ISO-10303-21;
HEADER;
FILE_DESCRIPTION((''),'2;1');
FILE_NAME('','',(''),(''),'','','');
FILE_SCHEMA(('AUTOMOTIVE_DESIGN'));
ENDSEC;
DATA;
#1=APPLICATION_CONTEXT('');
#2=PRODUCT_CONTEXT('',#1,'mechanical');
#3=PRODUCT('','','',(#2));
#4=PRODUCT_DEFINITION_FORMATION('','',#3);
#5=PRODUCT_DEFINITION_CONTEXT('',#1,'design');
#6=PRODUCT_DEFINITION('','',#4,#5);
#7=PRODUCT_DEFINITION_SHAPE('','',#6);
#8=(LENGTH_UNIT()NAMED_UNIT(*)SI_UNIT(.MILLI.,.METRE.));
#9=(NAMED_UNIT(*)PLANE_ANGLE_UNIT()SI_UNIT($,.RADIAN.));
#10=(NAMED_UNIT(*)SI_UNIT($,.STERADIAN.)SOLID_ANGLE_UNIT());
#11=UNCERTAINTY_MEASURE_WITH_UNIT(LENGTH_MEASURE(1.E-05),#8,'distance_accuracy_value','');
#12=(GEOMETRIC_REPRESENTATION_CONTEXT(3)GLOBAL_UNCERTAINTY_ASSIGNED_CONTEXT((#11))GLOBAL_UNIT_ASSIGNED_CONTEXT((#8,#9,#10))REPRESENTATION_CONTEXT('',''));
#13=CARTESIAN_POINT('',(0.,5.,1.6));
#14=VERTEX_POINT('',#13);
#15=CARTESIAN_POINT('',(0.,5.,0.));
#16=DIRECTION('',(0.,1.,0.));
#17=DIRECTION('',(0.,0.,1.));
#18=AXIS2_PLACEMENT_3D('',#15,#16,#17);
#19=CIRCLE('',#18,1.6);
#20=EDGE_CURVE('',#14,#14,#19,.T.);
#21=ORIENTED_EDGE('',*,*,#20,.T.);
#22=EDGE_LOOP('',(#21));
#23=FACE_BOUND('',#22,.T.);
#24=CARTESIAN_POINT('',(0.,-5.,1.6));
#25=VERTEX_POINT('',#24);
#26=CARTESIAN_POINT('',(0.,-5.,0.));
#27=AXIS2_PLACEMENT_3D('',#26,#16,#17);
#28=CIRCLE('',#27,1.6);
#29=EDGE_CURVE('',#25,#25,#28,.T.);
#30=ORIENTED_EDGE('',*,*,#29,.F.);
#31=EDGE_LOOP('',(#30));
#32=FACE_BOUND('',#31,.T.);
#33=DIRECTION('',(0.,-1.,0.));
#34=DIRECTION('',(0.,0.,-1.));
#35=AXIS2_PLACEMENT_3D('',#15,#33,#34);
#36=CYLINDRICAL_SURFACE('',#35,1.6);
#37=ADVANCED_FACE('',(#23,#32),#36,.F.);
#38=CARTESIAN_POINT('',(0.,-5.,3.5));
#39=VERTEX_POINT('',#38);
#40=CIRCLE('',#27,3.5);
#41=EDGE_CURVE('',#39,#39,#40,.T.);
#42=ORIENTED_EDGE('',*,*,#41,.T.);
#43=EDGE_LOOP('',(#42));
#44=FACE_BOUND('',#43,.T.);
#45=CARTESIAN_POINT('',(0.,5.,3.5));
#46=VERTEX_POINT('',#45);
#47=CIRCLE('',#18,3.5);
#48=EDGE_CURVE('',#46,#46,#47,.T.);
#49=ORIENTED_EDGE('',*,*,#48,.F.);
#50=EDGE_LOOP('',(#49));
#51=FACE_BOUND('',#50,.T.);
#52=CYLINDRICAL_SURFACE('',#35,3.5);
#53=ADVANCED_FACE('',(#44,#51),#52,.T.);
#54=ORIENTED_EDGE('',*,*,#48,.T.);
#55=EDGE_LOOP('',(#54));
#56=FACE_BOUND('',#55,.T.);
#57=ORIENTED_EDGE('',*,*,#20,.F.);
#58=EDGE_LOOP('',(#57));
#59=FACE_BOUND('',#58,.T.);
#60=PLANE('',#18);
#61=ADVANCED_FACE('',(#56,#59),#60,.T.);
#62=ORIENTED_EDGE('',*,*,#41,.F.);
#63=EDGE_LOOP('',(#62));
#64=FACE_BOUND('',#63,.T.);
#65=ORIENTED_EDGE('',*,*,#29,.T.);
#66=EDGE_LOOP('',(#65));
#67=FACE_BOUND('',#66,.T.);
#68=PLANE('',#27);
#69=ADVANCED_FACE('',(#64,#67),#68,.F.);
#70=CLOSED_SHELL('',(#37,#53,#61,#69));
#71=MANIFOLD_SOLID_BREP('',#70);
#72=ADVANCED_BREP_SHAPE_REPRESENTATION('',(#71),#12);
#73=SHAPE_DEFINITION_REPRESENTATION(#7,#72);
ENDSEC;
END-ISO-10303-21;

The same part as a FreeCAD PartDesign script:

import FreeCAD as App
import Part
import Sketcher

doc = App.newDocument("Part")
params = doc.addObject("Spreadsheet::Sheet", "Params")
for row, (alias, value) in enumerate([
    ("sketch1_diameter", "7 mm"),
    ("sketch1_diameter2", "3.2 mm"),
    ("pad1_length", "10 mm"),
], start=1):
    params.set(f"A{row}", alias)
    params.set(f"B{row}", "=" + value)
    params.setAlias(f"B{row}", alias)

body = doc.addObject("PartDesign::Body", "Body")

# Sketch on XZ plane
sketch1 = body.newObject("Sketcher::SketchObject", "Sketch")
sketch1.AttachmentSupport = (doc.getObject("XZ_Plane"), [""])
sketch1.MapMode = "FlatFace"
sketch1.addGeometry(Part.Circle(App.Vector(0, 0, 0), App.Vector(0, 0, 1), 3.5), False)
sketch1.addGeometry(Part.Circle(App.Vector(0, 0, 0), App.Vector(0, 0, 1), 1.6), False)
sketch1.addConstraint(Sketcher.Constraint("Coincident", 0, 3, -1, 1))
sketch1.addConstraint(Sketcher.Constraint("Coincident", 1, 3, -1, 1))
sketch1.addConstraint(Sketcher.Constraint("Diameter", 0, 7.0))
sketch1.addConstraint(Sketcher.Constraint("Diameter", 1, 3.2))
sketch1.setExpression("Constraints[2]", "Params.sketch1_diameter")
sketch1.setExpression("Constraints[3]", "Params.sketch1_diameter2")
pad1 = body.newObject("PartDesign::Pad", "Pad")
pad1.Profile = sketch1
pad1.setExpression("Length", "Params.pad1_length")
pad1.Midplane = True

doc.recompute()
